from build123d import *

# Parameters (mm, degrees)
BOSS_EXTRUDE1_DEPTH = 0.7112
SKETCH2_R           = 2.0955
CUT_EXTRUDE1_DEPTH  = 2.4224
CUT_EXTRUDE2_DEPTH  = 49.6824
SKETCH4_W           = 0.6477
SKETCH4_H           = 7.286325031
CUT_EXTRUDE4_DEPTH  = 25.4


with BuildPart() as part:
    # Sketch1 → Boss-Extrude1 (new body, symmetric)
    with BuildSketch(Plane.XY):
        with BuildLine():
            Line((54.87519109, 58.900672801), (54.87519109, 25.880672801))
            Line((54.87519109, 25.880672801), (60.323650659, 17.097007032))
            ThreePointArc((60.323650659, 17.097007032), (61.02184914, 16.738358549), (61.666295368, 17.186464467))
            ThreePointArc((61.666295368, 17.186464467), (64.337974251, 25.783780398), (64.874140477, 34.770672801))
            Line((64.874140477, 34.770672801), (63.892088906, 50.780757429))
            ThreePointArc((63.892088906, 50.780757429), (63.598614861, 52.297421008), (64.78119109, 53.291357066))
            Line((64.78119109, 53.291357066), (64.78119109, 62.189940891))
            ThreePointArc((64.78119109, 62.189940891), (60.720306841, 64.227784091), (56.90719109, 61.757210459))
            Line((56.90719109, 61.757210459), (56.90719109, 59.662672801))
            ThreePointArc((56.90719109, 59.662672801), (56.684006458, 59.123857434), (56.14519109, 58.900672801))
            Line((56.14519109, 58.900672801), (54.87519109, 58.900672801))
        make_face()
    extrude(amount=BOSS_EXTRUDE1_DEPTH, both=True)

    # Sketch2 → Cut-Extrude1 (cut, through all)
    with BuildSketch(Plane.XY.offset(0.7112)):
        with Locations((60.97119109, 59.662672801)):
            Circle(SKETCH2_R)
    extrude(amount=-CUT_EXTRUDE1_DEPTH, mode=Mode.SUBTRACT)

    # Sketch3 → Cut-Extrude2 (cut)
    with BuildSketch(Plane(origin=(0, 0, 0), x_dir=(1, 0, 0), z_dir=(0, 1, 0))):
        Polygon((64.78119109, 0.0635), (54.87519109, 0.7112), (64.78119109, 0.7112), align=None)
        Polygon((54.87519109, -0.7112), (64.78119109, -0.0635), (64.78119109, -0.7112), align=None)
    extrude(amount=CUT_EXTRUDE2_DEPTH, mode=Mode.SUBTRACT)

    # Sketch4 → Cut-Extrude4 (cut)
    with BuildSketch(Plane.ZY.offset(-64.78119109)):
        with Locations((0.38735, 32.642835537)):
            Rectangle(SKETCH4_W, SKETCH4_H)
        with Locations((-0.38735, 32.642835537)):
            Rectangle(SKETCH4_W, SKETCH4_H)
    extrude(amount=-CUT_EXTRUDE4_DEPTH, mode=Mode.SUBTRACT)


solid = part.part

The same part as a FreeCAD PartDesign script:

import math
import FreeCAD as App
import Part
import Sketcher
from FreeCAD import Vector
Q = App.Units.Quantity

doc = App.newDocument("Part")
body = doc.addObject("PartDesign::Body", "Body")

sketch1 = doc.addObject("Sketcher::SketchObject", "Sketch")
body.addObject(sketch1)
sketch1.AttachmentSupport = (doc.XY_Plane, [""])
sketch1.MapMode = "FlatFace"
sketch1.addGeometry(Part.LineSegment(Vector(54.9, 58.9, 0), Vector(54.9, 25.9, 0)), False)
sketch1.addGeometry(Part.LineSegment(Vector(54.9, 25.9, 0), Vector(60.3, 17.1, 0)), False)
sketch1.addGeometry(Part.ArcOfCircle(Part.Circle(Vector(61, 17.5, 0), Vector(0, 0, 1), 0.8), math.radians(-148), math.radians(-24)), False)
sketch1.addGeometry(Part.ArcOfCircle(Part.Circle(Vector(27.6, 32.5, 0), Vector(0, 0, 1), 37.3), math.radians(-24), math.radians(4)), False)
sketch1.addGeometry(Part.LineSegment(Vector(64.9, 34.8, 0), Vector(63.9, 50.8, 0)), False)
sketch1.addGeometry(Part.ArcOfCircle(Part.Circle(Vector(65, 51.8, 0), Vector(0, 0, 1), 1.5), math.radians(100), math.radians(221)), False)
sketch1.addGeometry(Part.LineSegment(Vector(64.8, 53.3, 0), Vector(64.8, 62.2, 0)), False)
sketch1.addGeometry(Part.ArcOfCircle(Part.Circle(Vector(61, 59.7, 0), Vector(0, 0, 1), 4.6), math.radians(34), math.radians(153)), False)
sketch1.addGeometry(Part.LineSegment(Vector(56.9, 61.8, 0), Vector(56.9, 59.7, 0)), False)
sketch1.addGeometry(Part.ArcOfCircle(Part.Circle(Vector(56.1, 59.7, 0), Vector(0, 0, 1), 0.8), math.radians(-90), math.radians(0)), False)
sketch1.addGeometry(Part.LineSegment(Vector(56.1, 58.9, 0), Vector(54.9, 58.9, 0)), False)
sketch1.addConstraint(Sketcher.Constraint("Coincident", 0, 2, 1, 1))
sketch1.addConstraint(Sketcher.Constraint("Tangent", 1, 2, 2, 1))
sketch1.addConstraint(Sketcher.Constraint("Tangent", 2, 2, 3, 1))
sketch1.addConstraint(Sketcher.Constraint("Tangent", 3, 2, 4, 1))
sketch1.addConstraint(Sketcher.Constraint("Coincident", 4, 2, 5, 2))
sketch1.addConstraint(Sketcher.Constraint("Coincident", 5, 1, 6, 1))
sketch1.addConstraint(Sketcher.Constraint("Coincident", 6, 2, 7, 1))
sketch1.addConstraint(Sketcher.Constraint("Coincident", 7, 2, 8, 1))
sketch1.addConstraint(Sketcher.Constraint("Tangent", 8, 2, 9, 2))
sketch1.addConstraint(Sketcher.Constraint("Tangent", 9, 1, 10, 1))
sketch1.addConstraint(Sketcher.Constraint("Coincident", 10, 2, 0, 1))
sketch1.addConstraint(Sketcher.Constraint("Vertical", 0))
sketch1.addConstraint(Sketcher.Constraint("Vertical", 6))
sketch1.addConstraint(Sketcher.Constraint("Vertical", 8))
sketch1.addConstraint(Sketcher.Constraint("Horizontal", 10))
sketch1.addConstraint(Sketcher.Constraint("Equal", 2, 9))
sketch1.addConstraint(Sketcher.Constraint("Horizontal", 7, 3, 9, 3))
sketch1.addConstraint(Sketcher.Constraint("Vertical", 2, 3, 7, 3))
sketch1.addConstraint(Sketcher.Constraint("Radius", 2, Q("0.03 in")))
sketch1.addConstraint(Sketcher.Constraint("Radius", 3, Q("1.47 in")))
sketch1.addConstraint(Sketcher.Constraint("Radius", 5, Q("0.06 in")))
sketch1.addConstraint(Sketcher.Constraint("Radius", 7, Q("0.18 in")))
sketch1.addConstraint(Sketcher.Constraint("DistanceY", 0, 2, 0, 1, Q("1.3 in")))
sketch1.addConstraint(Sketcher.Constraint("DistanceX", 10, 2, 10, 1, Q("0.05 in")))
sketch1.addConstraint(Sketcher.Constraint("DistanceX", 0, 2, 5, 3, Q("0.4 in")))
sketch1.addConstraint(Sketcher.Constraint("DistanceY", 2, 3, 3, 3, Q("0.59 in")))
sketch1.addConstraint(Sketcher.Constraint("DistanceX", 2, 3, 5, 3, Q("0.16 in")))
sketch1.addConstraint(Sketcher.Constraint("DistanceY", 2, 3, 5, 3, Q("1.35 in")))
sketch1.addConstraint(Sketcher.Constraint("DistanceY", 5, 3, 7, 3, Q("0.31 in")))
sketch1.addConstraint(Sketcher.Constraint("DistanceY", 0, 2, 3, 2, Q("0.35 in")))
sketch1.addConstraint(Sketcher.Constraint("DistanceX", 5, 1, 5, 3, Q("0.01 in")))
sketch1.addConstraint(Sketcher.Constraint("DistanceX", -1, 1, 3, 2, Q("2.5541 in")))
sketch1.addConstraint(Sketcher.Constraint("DistanceY", -1, 1, 6, 2, 62.189941))
pad1 = doc.addObject("PartDesign::Pad", "Pad")
body.addObject(pad1)
pad1.Profile = sketch1
pad1.Length = Q("0.056 in")
pad1.Midplane = True

sketch2 = doc.addObject("Sketcher::SketchObject", "Sketch001")
body.addObject(sketch2)
sketch2.AttachmentSupport = (doc.XY_Plane, [""])
sketch2.MapMode = "FlatFace"
sketch2.AttachmentOffset = App.Placement(Vector(0, 0, 0.028 * 25.4), App.Rotation())
sketch2.addGeometry(Part.Circle(Vector(61, 59.7, 0), Vector(0, 0, 1), 2.1), False)
sketch2.addConstraint(Sketcher.Constraint("Diameter", 0, Q("0.165 in")))
sketch2.addConstraint(Sketcher.Constraint("DistanceX", -1, 1, 0, 3, 60.971191))
sketch2.addConstraint(Sketcher.Constraint("DistanceY", -1, 1, 0, 3, 59.662673))
pocket1 = doc.addObject("PartDesign::Pocket", "Pocket")
body.addObject(pocket1)
pocket1.Profile = sketch2
pocket1.Type = "ThroughAll"

sketch3 = doc.addObject("Sketcher::SketchObject", "Sketch002")
body.addObject(sketch3)
sketch3.AttachmentSupport = (doc.XZ_Plane, [""])
sketch3.MapMode = "FlatFace"
sketch3.addGeometry(Part.LineSegment(Vector(54.9, -0.7, 0), Vector(64.8, -0.1, 0)), False)
sketch3.addGeometry(Part.LineSegment(Vector(64.8, -0.1, 0), Vector(64.8, -0.7, 0)), False)
sketch3.addGeometry(Part.LineSegment(Vector(64.8, -0.7, 0), Vector(54.9, -0.7, 0)), False)
sketch3.addGeometry(Part.LineSegment(Vector(64.8, 0.1, 0), Vector(54.9, 0.7, 0)), False)
sketch3.addGeometry(Part.LineSegment(Vector(54.9, 0.7, 0), Vector(64.8, 0.7, 0)), False)
sketch3.addGeometry(Part.LineSegment(Vector(64.8, 0.7, 0), Vector(64.8, 0.1, 0)), False)
sketch3.addConstraint(Sketcher.Constraint("Coincident", 0, 2, 1, 1))
sketch3.addConstraint(Sketcher.Constraint("Coincident", 1, 2, 2, 1))
sketch3.addConstraint(Sketcher.Constraint("Coincident", 2, 2, 0, 1))
sketch3.addConstraint(Sketcher.Constraint("Coincident", 3, 2, 4, 1))
sketch3.addConstraint(Sketcher.Constraint("Coincident", 4, 2, 5, 1))
sketch3.addConstraint(Sketcher.Constraint("Coincident", 5, 2, 3, 1))
sketch3.addConstraint(Sketcher.Constraint("Vertical", 1))
sketch3.addConstraint(Sketcher.Constraint("Horizontal", 2))
sketch3.addConstraint(Sketcher.Constraint("Horizontal", 4))
sketch3.addConstraint(Sketcher.Constraint("Vertical", 5))
sketch3.addConstraint(Sketcher.Constraint("Symmetric", 2, 2, 3, 2, -1))
sketch3.addConstraint(Sketcher.Constraint("Symmetric", 0, 2, 5, 2, -1))
sketch3.addConstraint(Sketcher.Constraint("DistanceX", 2, 2, 2, 1, Q("0.39 in")))
sketch3.addConstraint(Sketcher.Constraint("DistanceY", 1, 2, 1, 1, Q("0.0255 in")))
sketch3.addConstraint(Sketcher.Constraint("DistanceY", 1, 2, -1, 1, Q("0.028 in")))
sketch3.addConstraint(Sketcher.Constraint("DistanceX", -1, 1, 0, 2, 64.781191))
pocket2 = doc.addObject("PartDesign::Pocket", "Pocket001")
body.addObject(pocket2)
pocket2.Profile = sketch3
pocket2.Length = Q("1.956 in")

sketch4 = doc.addObject("Sketcher::SketchObject", "Sketch003")
body.addObject(sketch4)
sketch4.AttachmentSupport = (doc.YZ_Plane, [""])
sketch4.MapMode = "FlatFace"
sketch4.AttachmentOffset = App.Placement(Vector(0, 0, 64.781191), App.Rotation())
sketch4.addGeometry(Part.LineSegment(Vector(36.3, 0.1, 0), Vector(29, 0.1, 0)), False)
sketch4.addGeometry(Part.LineSegment(Vector(29, 0.1, 0), Vector(29, 0.7, 0)), False)
sketch4.addGeometry(Part.LineSegment(Vector(29, 0.7, 0), Vector(36.3, 0.7, 0)), False)
sketch4.addGeometry(Part.LineSegment(Vector(36.3, 0.7, 0), Vector(36.3, 0.1, 0)), False)
sketch4.addGeometry(Part.LineSegment(Vector(36.3, -0.7, 0), Vector(29, -0.7, 0)), False)
sketch4.addGeometry(Part.LineSegment(Vector(29, -0.7, 0), Vector(29, -0.1, 0)), False)
sketch4.addGeometry(Part.LineSegment(Vector(29, -0.1, 0), Vector(36.3, -0.1, 0)), False)
sketch4.addGeometry(Part.LineSegment(Vector(36.3, -0.1, 0), Vector(36.3, -0.7, 0)), False)
sketch4.addConstraint(Sketcher.Constraint("Coincident", 0, 2, 1, 1))
sketch4.addConstraint(Sketcher.Constraint("Coincident", 1, 2, 2, 1))
sketch4.addConstraint(Sketcher.Constraint("Coincident", 2, 2, 3, 1))
sketch4.addConstraint(Sketcher.Constraint("Coincident", 3, 2, 0, 1))
sketch4.addConstraint(Sketcher.Constraint("Coincident", 4, 2, 5, 1))
sketch4.addConstraint(Sketcher.Constraint("Coincident", 5, 2, 6, 1))
sketch4.addConstraint(Sketcher.Constraint("Coincident", 6, 2, 7, 1))
sketch4.addConstraint(Sketcher.Constraint("Coincident", 7, 2, 4, 1))
sketch4.addConstraint(Sketcher.Constraint("Horizontal", 0))
sketch4.addConstraint(Sketcher.Constraint("Vertical", 1))
sketch4.addConstraint(Sketcher.Constraint("Horizontal", 2))
sketch4.addConstraint(Sketcher.Constraint("Vertical", 3))
sketch4.addConstraint(Sketcher.Constraint("Horizontal", 4))
sketch4.addConstraint(Sketcher.Constraint("Vertical", 5))
sketch4.addConstraint(Sketcher.Constraint("Horizontal", 6))
sketch4.addConstraint(Sketcher.Constraint("Vertical", 7))
sketch4.addConstraint(Sketcher.Constraint("Symmetric", 1, 2, 4, 2, -1))
sketch4.addConstraint(Sketcher.Constraint("Symmetric", 3, 2, 6, 2, -1))
sketch4.addConstraint(Sketcher.Constraint("DistanceY", 1, 1, 1, 2, Q("0.0255 in")))
sketch4.addConstraint(Sketcher.Constraint("DistanceY", -1, 1, 1, 2, Q("0.028 in")))
sketch4.addConstraint(Sketcher.Constraint("DistanceX", -1, 1, 2, 2, 36.285998))
sketch4.addConstraint(Sketcher.Constraint("DistanceX", 0, 2, 0, 1, 7.286325))
pocket3 = doc.addObject("PartDesign::Pocket", "Pocket002")
body.addObject(pocket3)
pocket3.Profile = sketch4
pocket3.Length = Q("1 in")
pocket3.Reversed = True

doc.recompute()
